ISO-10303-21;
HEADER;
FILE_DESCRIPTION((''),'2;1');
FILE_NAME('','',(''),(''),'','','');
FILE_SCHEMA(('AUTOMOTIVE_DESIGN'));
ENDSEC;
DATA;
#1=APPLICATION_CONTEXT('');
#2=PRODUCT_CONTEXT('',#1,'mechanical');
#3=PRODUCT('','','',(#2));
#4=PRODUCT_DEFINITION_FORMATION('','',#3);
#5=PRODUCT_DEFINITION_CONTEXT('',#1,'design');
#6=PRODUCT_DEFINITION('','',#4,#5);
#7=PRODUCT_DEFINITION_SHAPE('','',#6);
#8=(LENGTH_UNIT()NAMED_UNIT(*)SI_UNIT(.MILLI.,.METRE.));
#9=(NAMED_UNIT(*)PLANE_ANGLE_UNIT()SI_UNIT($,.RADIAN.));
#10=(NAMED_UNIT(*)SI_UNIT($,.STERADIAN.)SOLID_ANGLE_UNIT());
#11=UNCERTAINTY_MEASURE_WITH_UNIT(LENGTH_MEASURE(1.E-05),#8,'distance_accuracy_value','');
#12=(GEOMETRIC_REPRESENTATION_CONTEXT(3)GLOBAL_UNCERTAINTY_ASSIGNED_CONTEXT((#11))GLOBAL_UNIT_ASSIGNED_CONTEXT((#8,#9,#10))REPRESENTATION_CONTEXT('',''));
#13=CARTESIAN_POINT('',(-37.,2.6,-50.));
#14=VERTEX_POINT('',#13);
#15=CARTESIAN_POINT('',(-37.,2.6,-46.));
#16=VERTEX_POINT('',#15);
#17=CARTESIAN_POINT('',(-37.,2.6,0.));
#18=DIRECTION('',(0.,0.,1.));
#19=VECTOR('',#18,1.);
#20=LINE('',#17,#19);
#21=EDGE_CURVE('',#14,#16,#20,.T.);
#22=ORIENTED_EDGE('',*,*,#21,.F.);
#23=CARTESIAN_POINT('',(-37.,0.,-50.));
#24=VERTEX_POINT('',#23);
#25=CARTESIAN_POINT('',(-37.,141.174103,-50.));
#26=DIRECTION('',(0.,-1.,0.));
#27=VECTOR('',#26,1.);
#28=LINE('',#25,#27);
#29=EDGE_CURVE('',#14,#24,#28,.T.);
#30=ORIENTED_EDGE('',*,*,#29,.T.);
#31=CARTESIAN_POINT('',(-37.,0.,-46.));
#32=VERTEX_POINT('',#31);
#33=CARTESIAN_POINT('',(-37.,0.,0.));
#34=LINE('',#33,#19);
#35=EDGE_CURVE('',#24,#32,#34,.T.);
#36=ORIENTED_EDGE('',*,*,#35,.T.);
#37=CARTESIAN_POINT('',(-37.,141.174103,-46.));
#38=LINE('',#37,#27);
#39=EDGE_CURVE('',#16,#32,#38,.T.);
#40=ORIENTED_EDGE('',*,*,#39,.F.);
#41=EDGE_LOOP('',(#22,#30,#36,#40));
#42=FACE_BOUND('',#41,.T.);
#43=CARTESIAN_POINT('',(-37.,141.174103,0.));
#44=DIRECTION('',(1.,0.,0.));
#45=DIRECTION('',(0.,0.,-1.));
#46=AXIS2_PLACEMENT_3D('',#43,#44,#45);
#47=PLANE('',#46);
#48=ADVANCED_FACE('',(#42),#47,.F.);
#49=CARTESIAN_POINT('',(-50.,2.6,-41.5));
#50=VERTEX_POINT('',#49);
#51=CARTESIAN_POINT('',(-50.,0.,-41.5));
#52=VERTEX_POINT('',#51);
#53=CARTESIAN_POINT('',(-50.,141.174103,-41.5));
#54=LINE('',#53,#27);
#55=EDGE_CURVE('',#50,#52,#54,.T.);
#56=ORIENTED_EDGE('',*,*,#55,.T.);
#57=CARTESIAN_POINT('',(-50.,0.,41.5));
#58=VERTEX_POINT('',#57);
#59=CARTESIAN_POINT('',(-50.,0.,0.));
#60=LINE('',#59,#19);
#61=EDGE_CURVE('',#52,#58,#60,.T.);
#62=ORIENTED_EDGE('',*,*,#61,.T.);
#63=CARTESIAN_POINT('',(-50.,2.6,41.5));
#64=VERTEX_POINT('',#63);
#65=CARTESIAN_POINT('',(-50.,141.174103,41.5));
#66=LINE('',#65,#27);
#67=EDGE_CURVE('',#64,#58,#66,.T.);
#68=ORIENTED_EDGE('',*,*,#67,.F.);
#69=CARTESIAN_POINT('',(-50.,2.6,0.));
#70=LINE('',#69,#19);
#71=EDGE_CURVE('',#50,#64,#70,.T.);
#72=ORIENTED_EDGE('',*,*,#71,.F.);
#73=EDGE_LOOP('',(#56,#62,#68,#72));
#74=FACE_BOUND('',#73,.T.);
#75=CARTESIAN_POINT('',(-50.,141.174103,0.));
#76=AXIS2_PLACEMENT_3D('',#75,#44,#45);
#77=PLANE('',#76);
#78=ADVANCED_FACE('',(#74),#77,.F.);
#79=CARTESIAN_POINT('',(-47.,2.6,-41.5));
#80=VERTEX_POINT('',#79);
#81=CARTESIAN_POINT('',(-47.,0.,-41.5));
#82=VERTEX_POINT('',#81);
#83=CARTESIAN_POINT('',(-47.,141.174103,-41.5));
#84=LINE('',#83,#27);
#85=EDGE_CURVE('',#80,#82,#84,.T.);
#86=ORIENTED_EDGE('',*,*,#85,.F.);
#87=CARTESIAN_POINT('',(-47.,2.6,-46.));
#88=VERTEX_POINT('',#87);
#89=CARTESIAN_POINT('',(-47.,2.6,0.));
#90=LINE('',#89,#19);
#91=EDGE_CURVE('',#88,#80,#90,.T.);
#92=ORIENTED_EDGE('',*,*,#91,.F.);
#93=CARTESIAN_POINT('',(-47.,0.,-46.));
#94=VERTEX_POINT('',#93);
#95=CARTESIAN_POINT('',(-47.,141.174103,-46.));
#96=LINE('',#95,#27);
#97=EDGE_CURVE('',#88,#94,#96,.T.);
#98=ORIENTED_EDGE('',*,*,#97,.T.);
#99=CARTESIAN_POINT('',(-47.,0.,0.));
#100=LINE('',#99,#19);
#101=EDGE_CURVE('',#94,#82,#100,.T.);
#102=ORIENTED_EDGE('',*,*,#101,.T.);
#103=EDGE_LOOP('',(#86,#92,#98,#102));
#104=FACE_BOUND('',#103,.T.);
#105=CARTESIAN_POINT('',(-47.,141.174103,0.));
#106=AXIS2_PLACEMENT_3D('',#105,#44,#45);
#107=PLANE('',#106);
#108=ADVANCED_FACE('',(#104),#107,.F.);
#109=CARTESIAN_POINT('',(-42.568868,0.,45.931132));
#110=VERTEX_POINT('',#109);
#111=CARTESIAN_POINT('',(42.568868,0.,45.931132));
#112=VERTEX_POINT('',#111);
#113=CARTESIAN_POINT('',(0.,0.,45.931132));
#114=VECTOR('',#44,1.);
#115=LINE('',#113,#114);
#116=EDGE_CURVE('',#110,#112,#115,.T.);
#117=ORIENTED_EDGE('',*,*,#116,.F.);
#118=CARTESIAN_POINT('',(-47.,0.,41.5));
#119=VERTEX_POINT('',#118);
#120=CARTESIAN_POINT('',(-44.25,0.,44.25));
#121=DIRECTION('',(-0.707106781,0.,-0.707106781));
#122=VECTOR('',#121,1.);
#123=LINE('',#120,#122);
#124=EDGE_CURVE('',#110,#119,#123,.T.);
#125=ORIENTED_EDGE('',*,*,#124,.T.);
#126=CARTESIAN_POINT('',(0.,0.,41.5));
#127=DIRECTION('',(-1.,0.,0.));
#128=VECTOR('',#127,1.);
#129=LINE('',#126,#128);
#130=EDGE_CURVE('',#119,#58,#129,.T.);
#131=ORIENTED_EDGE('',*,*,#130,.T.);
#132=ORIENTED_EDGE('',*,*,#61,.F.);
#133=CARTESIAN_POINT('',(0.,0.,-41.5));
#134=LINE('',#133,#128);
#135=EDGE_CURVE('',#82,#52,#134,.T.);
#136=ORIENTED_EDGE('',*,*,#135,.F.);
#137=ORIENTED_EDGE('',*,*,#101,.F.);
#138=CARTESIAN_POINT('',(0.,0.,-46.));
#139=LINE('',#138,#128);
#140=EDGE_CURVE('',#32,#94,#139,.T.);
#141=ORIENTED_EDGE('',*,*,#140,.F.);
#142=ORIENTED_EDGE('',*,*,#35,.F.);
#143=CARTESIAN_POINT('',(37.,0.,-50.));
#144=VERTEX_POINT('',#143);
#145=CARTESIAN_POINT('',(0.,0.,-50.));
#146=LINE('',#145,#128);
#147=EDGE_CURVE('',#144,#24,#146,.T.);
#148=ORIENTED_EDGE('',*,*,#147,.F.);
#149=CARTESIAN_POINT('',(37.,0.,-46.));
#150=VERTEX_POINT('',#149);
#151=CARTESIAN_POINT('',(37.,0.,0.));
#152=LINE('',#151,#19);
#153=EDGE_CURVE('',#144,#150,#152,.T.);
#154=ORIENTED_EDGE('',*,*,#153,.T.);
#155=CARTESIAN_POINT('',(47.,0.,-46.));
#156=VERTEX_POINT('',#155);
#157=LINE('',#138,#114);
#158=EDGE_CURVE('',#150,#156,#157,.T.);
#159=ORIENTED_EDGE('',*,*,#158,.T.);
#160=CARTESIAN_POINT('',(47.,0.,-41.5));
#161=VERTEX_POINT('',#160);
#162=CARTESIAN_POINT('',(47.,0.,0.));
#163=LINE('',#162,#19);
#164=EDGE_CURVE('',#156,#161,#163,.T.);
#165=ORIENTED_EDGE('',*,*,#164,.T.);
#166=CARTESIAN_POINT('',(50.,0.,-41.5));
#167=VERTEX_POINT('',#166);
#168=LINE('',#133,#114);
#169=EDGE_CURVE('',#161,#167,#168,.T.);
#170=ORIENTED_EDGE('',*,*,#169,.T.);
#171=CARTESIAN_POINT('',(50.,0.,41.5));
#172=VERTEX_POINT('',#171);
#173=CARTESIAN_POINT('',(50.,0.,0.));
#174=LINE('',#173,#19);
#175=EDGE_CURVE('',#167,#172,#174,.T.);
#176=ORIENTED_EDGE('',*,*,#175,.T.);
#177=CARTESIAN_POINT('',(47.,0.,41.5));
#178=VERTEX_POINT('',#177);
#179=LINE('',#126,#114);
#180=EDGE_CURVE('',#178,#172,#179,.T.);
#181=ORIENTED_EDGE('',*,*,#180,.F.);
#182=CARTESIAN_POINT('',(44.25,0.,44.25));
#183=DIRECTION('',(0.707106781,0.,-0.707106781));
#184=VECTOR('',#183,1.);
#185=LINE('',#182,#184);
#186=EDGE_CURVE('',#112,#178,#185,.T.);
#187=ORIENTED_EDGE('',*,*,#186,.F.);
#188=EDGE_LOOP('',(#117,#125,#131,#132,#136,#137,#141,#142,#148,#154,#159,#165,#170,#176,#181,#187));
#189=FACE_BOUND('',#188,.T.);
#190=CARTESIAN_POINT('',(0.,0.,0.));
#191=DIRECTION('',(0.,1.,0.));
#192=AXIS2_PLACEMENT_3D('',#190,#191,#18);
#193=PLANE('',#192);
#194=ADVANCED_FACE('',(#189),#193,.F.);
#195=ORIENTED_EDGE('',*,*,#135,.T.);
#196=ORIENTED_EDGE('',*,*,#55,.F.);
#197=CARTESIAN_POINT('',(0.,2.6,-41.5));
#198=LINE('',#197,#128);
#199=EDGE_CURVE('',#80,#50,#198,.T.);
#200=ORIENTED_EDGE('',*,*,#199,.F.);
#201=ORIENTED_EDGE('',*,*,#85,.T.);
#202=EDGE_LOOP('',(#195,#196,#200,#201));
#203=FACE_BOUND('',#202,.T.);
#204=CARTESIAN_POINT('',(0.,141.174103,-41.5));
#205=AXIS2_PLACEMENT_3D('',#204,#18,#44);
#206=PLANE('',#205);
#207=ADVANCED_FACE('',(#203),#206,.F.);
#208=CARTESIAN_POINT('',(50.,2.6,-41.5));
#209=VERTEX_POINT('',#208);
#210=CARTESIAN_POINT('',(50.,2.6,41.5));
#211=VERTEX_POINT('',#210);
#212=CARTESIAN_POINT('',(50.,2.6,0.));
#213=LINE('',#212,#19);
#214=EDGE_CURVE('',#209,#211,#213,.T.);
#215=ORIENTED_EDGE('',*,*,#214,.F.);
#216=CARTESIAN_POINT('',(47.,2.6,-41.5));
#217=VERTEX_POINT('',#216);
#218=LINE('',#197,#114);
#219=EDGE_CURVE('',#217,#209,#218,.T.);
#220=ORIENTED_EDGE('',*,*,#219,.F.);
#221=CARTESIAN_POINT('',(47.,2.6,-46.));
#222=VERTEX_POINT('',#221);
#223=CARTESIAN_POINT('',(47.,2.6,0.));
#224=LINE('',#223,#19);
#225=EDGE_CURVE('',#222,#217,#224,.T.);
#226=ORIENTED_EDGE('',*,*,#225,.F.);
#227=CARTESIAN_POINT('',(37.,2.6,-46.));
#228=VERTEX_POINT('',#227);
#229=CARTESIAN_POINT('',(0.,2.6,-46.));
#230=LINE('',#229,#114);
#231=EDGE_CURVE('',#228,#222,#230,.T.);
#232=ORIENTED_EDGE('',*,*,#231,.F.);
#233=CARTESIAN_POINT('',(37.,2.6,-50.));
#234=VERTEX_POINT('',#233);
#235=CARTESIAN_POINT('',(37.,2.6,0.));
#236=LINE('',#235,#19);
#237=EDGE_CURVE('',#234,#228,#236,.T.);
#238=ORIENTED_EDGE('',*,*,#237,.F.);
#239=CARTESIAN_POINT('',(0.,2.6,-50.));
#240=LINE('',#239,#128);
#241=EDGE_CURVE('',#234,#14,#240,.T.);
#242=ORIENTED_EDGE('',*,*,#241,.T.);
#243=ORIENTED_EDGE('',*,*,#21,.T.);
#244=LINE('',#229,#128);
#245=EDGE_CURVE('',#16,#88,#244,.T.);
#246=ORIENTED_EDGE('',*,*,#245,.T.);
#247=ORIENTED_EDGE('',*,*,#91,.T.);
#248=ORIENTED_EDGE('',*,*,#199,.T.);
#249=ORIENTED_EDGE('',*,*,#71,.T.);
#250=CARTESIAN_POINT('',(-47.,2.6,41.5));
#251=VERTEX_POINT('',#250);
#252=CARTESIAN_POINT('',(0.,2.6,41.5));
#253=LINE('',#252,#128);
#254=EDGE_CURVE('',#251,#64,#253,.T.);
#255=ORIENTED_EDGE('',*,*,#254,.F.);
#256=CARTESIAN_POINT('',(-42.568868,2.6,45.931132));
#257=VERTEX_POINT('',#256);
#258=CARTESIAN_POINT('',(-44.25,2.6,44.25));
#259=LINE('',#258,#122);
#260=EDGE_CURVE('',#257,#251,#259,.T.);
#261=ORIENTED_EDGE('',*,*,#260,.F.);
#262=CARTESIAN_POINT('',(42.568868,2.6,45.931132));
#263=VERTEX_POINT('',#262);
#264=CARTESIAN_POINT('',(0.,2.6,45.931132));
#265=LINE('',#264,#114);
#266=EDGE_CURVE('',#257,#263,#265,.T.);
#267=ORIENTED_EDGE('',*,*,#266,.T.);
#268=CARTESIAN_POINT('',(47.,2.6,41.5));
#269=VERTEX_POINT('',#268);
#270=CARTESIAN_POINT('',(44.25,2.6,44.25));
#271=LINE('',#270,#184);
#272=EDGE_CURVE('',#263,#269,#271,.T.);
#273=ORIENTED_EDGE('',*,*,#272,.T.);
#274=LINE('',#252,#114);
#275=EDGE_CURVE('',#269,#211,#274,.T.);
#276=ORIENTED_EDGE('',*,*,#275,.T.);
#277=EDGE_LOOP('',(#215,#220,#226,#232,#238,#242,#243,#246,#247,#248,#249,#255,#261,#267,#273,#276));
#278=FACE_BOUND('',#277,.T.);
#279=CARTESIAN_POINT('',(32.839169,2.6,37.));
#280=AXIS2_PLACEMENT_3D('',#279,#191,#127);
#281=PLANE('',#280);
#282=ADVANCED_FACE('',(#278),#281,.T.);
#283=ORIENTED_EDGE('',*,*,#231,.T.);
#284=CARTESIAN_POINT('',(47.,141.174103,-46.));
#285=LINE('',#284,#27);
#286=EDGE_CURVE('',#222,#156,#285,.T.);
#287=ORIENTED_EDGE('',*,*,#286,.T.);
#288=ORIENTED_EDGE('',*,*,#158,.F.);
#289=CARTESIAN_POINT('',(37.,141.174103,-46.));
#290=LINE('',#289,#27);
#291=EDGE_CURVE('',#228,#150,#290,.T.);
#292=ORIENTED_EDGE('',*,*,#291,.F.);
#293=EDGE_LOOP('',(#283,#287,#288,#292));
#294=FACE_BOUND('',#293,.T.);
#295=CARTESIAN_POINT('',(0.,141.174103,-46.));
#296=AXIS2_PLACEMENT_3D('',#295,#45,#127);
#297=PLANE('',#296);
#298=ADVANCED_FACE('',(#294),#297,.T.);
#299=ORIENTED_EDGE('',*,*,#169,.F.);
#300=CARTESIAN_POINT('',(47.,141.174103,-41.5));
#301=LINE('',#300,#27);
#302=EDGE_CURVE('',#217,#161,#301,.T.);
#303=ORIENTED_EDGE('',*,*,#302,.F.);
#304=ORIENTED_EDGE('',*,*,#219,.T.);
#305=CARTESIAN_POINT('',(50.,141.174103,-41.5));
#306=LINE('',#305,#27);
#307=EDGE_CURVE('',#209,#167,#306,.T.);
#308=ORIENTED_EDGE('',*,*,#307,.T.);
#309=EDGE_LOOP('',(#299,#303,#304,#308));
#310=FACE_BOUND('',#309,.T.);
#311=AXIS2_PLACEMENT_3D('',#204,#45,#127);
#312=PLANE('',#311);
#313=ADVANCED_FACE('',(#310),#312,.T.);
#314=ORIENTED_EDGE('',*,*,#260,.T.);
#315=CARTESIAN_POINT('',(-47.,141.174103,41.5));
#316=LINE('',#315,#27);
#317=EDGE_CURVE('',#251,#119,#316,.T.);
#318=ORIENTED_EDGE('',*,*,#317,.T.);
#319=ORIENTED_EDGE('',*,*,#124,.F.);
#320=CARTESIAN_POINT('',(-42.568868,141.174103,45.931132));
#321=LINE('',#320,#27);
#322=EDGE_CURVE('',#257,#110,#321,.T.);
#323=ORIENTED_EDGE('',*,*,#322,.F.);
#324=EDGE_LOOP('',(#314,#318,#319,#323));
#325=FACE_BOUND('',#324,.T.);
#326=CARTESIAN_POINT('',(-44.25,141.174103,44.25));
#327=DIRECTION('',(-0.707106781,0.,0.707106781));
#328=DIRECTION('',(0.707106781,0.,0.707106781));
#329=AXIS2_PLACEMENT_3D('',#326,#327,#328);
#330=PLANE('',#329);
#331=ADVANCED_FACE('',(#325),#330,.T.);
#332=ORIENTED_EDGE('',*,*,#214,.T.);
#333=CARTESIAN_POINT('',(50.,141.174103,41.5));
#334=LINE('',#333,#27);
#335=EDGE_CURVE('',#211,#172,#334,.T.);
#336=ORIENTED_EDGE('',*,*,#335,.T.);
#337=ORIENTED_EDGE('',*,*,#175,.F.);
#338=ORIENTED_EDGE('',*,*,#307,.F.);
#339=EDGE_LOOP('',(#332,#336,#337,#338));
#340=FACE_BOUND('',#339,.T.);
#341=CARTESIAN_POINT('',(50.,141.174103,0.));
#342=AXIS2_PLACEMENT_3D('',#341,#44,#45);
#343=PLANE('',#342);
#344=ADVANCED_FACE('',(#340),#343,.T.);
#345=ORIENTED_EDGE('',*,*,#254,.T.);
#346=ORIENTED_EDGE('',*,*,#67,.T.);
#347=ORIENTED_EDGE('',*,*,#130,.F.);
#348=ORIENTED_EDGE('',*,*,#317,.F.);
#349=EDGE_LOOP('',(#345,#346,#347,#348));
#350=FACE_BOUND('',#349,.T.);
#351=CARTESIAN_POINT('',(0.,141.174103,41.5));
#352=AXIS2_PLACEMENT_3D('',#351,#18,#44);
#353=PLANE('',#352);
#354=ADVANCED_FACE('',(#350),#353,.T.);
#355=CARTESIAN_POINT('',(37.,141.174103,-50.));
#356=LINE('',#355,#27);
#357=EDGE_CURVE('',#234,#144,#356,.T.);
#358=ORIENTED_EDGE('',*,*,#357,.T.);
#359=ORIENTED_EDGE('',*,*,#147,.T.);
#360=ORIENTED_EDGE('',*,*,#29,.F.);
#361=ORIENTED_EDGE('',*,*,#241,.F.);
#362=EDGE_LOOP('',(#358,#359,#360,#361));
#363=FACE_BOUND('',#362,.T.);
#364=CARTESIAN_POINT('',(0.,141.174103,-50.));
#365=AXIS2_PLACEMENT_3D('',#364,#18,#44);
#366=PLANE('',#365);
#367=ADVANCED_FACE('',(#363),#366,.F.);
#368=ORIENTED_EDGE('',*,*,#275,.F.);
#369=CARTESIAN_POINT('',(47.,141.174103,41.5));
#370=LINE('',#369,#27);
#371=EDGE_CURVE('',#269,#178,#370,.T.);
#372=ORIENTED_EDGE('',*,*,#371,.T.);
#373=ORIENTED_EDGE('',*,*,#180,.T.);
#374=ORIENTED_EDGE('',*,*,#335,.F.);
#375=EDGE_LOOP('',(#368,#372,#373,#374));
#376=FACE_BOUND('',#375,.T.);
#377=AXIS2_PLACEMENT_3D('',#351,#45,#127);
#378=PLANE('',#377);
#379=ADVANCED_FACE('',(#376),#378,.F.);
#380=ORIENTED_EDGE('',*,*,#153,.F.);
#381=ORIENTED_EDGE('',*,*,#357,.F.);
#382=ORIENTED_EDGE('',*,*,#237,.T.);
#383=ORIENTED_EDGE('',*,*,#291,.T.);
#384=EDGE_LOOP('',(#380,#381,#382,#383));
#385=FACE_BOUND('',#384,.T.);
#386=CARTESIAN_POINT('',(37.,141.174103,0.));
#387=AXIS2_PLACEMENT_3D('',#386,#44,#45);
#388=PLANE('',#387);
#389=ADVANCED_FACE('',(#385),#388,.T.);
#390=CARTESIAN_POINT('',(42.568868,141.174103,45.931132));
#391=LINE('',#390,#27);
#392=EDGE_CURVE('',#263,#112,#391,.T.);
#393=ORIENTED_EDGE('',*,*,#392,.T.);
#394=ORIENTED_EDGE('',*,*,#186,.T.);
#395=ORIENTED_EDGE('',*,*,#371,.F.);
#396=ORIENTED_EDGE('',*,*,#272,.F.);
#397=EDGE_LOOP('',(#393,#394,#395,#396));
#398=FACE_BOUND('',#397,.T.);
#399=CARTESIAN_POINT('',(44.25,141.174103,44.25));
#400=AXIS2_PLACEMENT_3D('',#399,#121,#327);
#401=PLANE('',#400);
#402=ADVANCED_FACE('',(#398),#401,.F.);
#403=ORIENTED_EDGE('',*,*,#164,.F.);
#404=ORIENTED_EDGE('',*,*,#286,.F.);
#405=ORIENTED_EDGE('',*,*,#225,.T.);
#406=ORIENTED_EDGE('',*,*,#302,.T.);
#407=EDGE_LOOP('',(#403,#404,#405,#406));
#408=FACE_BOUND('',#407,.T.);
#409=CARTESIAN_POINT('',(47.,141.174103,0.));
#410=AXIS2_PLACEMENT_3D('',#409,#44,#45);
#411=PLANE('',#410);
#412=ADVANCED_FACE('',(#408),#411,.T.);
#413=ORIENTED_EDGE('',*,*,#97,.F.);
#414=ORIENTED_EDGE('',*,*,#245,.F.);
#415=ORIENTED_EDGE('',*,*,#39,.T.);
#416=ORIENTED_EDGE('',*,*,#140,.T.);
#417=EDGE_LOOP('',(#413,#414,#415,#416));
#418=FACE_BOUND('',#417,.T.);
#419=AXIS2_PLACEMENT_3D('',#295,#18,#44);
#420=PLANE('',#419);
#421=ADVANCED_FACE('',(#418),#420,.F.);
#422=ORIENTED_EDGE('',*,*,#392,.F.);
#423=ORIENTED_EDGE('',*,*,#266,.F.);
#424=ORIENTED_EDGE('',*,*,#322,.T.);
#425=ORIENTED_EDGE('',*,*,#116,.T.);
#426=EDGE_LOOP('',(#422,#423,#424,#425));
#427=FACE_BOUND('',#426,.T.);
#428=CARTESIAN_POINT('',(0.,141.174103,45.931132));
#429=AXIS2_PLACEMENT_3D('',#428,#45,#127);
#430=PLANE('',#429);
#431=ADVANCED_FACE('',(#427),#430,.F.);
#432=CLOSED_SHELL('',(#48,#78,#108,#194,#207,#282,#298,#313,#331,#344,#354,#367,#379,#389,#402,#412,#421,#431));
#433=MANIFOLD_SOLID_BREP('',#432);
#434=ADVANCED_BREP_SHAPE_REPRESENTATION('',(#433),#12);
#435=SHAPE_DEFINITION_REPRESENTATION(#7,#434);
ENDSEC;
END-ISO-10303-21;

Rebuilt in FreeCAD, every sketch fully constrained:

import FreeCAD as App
import Part
import Sketcher
from FreeCAD import Vector

doc = App.newDocument("Part")
body = doc.addObject("PartDesign::Body", "Body")

# Sketch on XZ plane
sketch1 = doc.addObject("Sketcher::SketchObject", "Sketch")
body.addObject(sketch1)
sketch1.AttachmentSupport = (doc.XZ_Plane, [""])
sketch1.MapMode = "FlatFace"
sketch1.addGeometry([
    Part.LineSegment(Vector(37, -46, 0), Vector(37, -50, 0)),  # 0
    Part.LineSegment(Vector(37, -50, 0), Vector(-37, -50, 0)),  # 1
    Part.LineSegment(Vector(-37, -50, 0), Vector(-37, -46, 0)),  # 2
    Part.LineSegment(Vector(-37, -46, 0), Vector(-47, -46, 0)),  # 3
    Part.LineSegment(Vector(-47, -46, 0), Vector(-47, -41.5, 0)),  # 4
    Part.LineSegment(Vector(-47, -41.5, 0), Vector(-50, -41.5, 0)),  # 5
    Part.LineSegment(Vector(-50, -41.5, 0), Vector(-50, 41.5, 0)),  # 6
    Part.LineSegment(Vector(-50, 41.5, 0), Vector(-47, 41.5, 0)),  # 7
    Part.LineSegment(Vector(-47, 41.5, 0), Vector(-42.568868, 45.931132, 0)),  # 8
    Part.LineSegment(Vector(-42.568868, 45.931132, 0), Vector(42.568868, 45.931132, 0)),  # 9
    Part.LineSegment(Vector(42.568868, 45.931132, 0), Vector(47, 41.5, 0)),  # 10
    Part.LineSegment(Vector(47, 41.5, 0), Vector(50, 41.5, 0)),  # 11
    Part.LineSegment(Vector(50, 41.5, 0), Vector(50, -41.5, 0)),  # 12
    Part.LineSegment(Vector(50, -41.5, 0), Vector(47, -41.5, 0)),  # 13
    Part.LineSegment(Vector(47, -41.5, 0), Vector(47, -46, 0)),  # 14
    Part.LineSegment(Vector(47, -46, 0), Vector(37, -46, 0)),  # 15
], False)
sketch1.addConstraint([
    Sketcher.Constraint("Coincident", 0, 2, 1, 1),
    Sketcher.Constraint("Coincident", 1, 2, 2, 1),
    Sketcher.Constraint("Coincident", 2, 2, 3, 1),
    Sketcher.Constraint("Coincident", 3, 2, 4, 1),
    Sketcher.Constraint("Coincident", 4, 2, 5, 1),
    Sketcher.Constraint("Coincident", 5, 2, 6, 1),
    Sketcher.Constraint("Coincident", 6, 2, 7, 1),
    Sketcher.Constraint("Coincident", 7, 2, 8, 1),
    Sketcher.Constraint("Coincident", 8, 2, 9, 1),
    Sketcher.Constraint("Coincident", 9, 2, 10, 1),
    Sketcher.Constraint("Coincident", 10, 2, 11, 1),
    Sketcher.Constraint("Coincident", 11, 2, 12, 1),
    Sketcher.Constraint("Coincident", 12, 2, 13, 1),
    Sketcher.Constraint("Coincident", 13, 2, 14, 1),
    Sketcher.Constraint("Coincident", 14, 2, 15, 1),
    Sketcher.Constraint("Coincident", 15, 2, 0, 1),
    Sketcher.Constraint("Vertical", 0),
    Sketcher.Constraint("Horizontal", 1),
    Sketcher.Constraint("Vertical", 2),
    Sketcher.Constraint("Horizontal", 3),
    Sketcher.Constraint("Vertical", 4),
    Sketcher.Constraint("Horizontal", 5),
    Sketcher.Constraint("Vertical", 6),
    Sketcher.Constraint("Horizontal", 7),
    Sketcher.Constraint("Horizontal", 9),
    Sketcher.Constraint("Horizontal", 11),
    Sketcher.Constraint("Vertical", 12),
    Sketcher.Constraint("Horizontal", 13),
    Sketcher.Constraint("Vertical", 14),
    Sketcher.Constraint("Horizontal", 15),
    Sketcher.Constraint("Symmetric", 4, 2, 10, 2, -1, 1),
    Sketcher.Constraint("Symmetric", 6, 2, 12, 2, -1, 1),
    Sketcher.Constraint("Symmetric", 7, 2, 10, 2, -2),
    Sketcher.Constraint("Symmetric", 3, 2, 14, 2, -2),
    Sketcher.Constraint("Perpendicular", 8, 10),
    Sketcher.Constraint("Equal", 3, 15),
    Sketcher.Constraint("Equal", 8, 10),
    Sketcher.Constraint("DistanceX", 1, 2, 1, 1, 74.0),
    Sketcher.Constraint("DistanceX", 3, 2, 3, 1, 10.0),
    Sketcher.Constraint("DistanceX", 5, 2, 5, 1, 3.0),
    Sketcher.Constraint("DistanceY", 0, 2, 0, 1, 4.0),
    Sketcher.Constraint("DistanceY", 6, 1, 6, 2, 83.0),
    Sketcher.Constraint("DistanceY", 4, 1, 4, 2, 4.5),
    Sketcher.Constraint("DistanceX", 9, 1, 9, 2, 85.137736),
])
pad1 = doc.addObject("PartDesign::Pad", "Pad")
body.addObject(pad1)
pad1.Profile = sketch1
pad1.Length = 2.6
pad1.Reversed = True

doc.recompute()
